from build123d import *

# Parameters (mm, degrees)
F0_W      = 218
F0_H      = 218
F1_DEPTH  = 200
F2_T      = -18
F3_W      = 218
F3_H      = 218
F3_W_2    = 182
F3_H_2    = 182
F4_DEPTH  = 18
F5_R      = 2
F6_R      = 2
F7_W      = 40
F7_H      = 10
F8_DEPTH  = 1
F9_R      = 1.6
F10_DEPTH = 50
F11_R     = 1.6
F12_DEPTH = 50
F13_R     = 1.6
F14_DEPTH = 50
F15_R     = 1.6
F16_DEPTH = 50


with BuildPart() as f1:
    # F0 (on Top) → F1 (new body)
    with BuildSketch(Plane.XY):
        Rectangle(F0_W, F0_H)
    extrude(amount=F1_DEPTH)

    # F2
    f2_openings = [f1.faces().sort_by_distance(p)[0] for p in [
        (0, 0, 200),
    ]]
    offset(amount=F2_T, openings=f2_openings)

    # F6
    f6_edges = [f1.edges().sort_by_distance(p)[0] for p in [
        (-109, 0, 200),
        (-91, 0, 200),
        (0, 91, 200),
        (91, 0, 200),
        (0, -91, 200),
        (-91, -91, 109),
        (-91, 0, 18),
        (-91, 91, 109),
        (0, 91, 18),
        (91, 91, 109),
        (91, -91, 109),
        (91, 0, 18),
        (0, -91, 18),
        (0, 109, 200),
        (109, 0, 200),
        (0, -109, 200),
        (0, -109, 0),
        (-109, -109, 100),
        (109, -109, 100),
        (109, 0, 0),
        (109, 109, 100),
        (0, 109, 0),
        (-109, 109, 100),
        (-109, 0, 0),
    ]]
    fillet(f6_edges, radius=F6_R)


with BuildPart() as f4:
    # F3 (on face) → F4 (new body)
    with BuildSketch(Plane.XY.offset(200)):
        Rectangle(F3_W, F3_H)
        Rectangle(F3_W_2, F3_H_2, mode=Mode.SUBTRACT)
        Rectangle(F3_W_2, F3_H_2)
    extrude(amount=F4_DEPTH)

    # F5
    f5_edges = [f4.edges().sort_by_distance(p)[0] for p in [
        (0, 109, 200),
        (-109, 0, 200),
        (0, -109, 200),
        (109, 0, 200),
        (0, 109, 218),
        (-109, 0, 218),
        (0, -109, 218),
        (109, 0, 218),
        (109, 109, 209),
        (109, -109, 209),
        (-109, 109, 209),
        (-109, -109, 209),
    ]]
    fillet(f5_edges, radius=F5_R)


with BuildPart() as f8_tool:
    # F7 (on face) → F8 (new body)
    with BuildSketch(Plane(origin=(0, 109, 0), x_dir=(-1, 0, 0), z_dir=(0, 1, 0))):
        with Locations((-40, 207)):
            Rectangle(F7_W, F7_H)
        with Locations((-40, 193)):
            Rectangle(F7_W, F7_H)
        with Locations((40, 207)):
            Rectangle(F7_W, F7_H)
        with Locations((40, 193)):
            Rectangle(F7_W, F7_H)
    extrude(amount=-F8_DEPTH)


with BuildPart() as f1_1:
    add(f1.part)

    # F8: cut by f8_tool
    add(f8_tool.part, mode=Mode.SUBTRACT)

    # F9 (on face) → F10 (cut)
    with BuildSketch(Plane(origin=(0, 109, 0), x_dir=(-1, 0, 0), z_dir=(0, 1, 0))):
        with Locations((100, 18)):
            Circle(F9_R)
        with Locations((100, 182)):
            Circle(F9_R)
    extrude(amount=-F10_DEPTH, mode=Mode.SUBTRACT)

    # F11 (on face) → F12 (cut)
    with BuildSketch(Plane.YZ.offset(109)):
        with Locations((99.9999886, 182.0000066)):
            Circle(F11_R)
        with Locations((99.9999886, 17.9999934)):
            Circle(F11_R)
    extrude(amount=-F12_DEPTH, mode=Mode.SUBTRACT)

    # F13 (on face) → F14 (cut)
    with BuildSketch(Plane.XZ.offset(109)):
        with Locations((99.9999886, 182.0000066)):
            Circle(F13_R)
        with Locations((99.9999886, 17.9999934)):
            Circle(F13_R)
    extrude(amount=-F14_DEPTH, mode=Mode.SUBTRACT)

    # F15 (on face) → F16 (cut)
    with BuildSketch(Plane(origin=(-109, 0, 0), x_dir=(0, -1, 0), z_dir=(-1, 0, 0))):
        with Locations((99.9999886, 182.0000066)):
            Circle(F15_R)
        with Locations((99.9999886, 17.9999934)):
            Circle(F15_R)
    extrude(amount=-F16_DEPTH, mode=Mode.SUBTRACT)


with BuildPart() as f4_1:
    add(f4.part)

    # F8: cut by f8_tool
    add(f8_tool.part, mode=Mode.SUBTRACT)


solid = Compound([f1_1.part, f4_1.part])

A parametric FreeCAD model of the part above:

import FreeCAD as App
import Part
import Sketcher
from FreeCAD import Vector
Q = App.Units.Quantity


def faces_at(feature, points):
    """Names of the faces that lie closest to the given points."""
    faces = feature.Shape.Faces
    near = lambda p: min(range(len(faces)), key=lambda i: faces[i].distToShape(Part.Vertex(*p))[0])
    return sorted({f"Face{near(p) + 1}" for p in points})


def add_polygon(sketch, points):
    """Adds a closed chain of lines whose ends are joined by coincident constraints."""
    first, n = sketch.GeometryCount, len(points)
    for a, b in zip(points, points[1:] + points[:1]):
        sketch.addGeometry(Part.LineSegment(App.Vector(*a, 0), App.Vector(*b, 0)), False)
    for i in range(n):
        sketch.addConstraint(Sketcher.Constraint("Coincident", first + i, 2, first + (i + 1) % n, 1))

doc = App.newDocument("Part")
body = doc.addObject("PartDesign::Body", "Body")

# Sketch on XY plane
sketch1 = body.newObject("Sketcher::SketchObject", "Sketch")
sketch1.AttachmentSupport = (doc.getObject("XY_Plane"), [""])
sketch1.MapMode = "FlatFace"
add_polygon(sketch1, [(-109, 109), (-109, -109), (109, -109), (109, 109)])  # lines 0-3
sketch1.addConstraint([
    Sketcher.Constraint("Vertical", 0),
    Sketcher.Constraint("Horizontal", 1),
    Sketcher.Constraint("Vertical", 2),
    Sketcher.Constraint("Horizontal", 3),
    Sketcher.Constraint("Symmetric", 0, 2, 2, 2, -1, 1),
    Sketcher.Constraint("Equal", 3, 0),
    Sketcher.Constraint("DistanceX", 1, 1, 1, 2, Q("218 mm")),
])
pad1 = body.newObject("PartDesign::Pad", "Pad")
pad1.Profile = sketch1
pad1.Length = 200
doc.recompute()

thickness = body.newObject("PartDesign::Thickness", "Thickness")
thickness.Base = (pad1, faces_at(pad1, [(0, 0, 200)]))
thickness.Value = 18
thickness.Reversed = True
thickness.Join = "Arc"
doc.recompute()

fillet = body.newObject("PartDesign::Fillet", "Fillet")
fillet.Base = (thickness, ["Edge1"])
fillet.UseAllEdges = True
fillet.Radius = 2
body2 = doc.addObject("PartDesign::Body", "Body001")

# Sketch on XY plane
sketch2 = body2.newObject("Sketcher::SketchObject", "Sketch001")
sketch2.AttachmentSupport = (doc.getObject("XY_Plane001"), [""])
sketch2.MapMode = "FlatFace"
sketch2.AttachmentOffset = App.Placement(Vector(0, 0, 200), App.Rotation())
add_polygon(sketch2, [(-109, 109), (-109, -109), (109, -109), (109, 109)])  # lines 0-3
sketch2.addConstraint([
    Sketcher.Constraint("Vertical", 0),
    Sketcher.Constraint("Horizontal", 1),
    Sketcher.Constraint("Vertical", 2),
    Sketcher.Constraint("Horizontal", 3),
    Sketcher.Constraint("Symmetric", 0, 2, 2, 2, -1, 1),
    Sketcher.Constraint("Equal", 3, 0),
    Sketcher.Constraint("DistanceX", 1, 1, 1, 2, Q("218 mm")),
])
pad2 = body2.newObject("PartDesign::Pad", "Pad001")
pad2.Profile = sketch2
pad2.Length = 18
doc.recompute()

fillet2 = body2.newObject("PartDesign::Fillet", "Fillet001")
fillet2.Base = (pad2, ["Edge1"])
fillet2.UseAllEdges = True
fillet2.Radius = 2
body3 = doc.addObject("PartDesign::Body", "Body002")
body3.AllowCompound = True

# Sketch on XZ plane
sketch3 = body3.newObject("Sketcher::SketchObject", "Sketch002")
sketch3.AttachmentSupport = (doc.getObject("XZ_Plane002"), [""])
sketch3.MapMode = "FlatFace"
sketch3.AttachmentOffset = App.Placement(Vector(0, 0, -109), App.Rotation())
add_polygon(sketch3, [(60, 212), (60, 202), (20, 202), (20, 212)])  # lines 0-3
add_polygon(sketch3, [(60, 198), (60, 188), (20, 188), (20, 198)])  # lines 4-7
add_polygon(sketch3, [(-20, 212), (-20, 202), (-60, 202), (-60, 212)])  # lines 8-11
add_polygon(sketch3, [(-20, 198), (-20, 188), (-60, 188), (-60, 198)])  # lines 12-15
sketch3.addConstraint([
    Sketcher.Constraint("Vertical", 0),
    Sketcher.Constraint("Horizontal", 1),
    Sketcher.Constraint("Vertical", 2),
    Sketcher.Constraint("Horizontal", 3),
    Sketcher.Constraint("Vertical", 4),
    Sketcher.Constraint("Horizontal", 5),
    Sketcher.Constraint("Vertical", 6),
    Sketcher.Constraint("Horizontal", 7),
    Sketcher.Constraint("Vertical", 8),
    Sketcher.Constraint("Horizontal", 9),
    Sketcher.Constraint("Vertical", 10),
    Sketcher.Constraint("Horizontal", 11),
    Sketcher.Constraint("Vertical", 12),
    Sketcher.Constraint("Horizontal", 13),
    Sketcher.Constraint("Vertical", 14),
    Sketcher.Constraint("Horizontal", 15),
    Sketcher.Constraint("Symmetric", 1, 2, 8, 2, -2),
    Sketcher.Constraint("Symmetric", 3, 2, 10, 2, -2),
    Sketcher.Constraint("Symmetric", 5, 2, 12, 2, -2),
    Sketcher.Constraint("Symmetric", 7, 2, 14, 2, -2),
    Sketcher.Constraint("Vertical", 3, 2, 4, 2),
    Sketcher.Constraint("Vertical", 2, 2, 5, 2),
    Sketcher.Constraint("Equal", 2, 4),
    Sketcher.Constraint("DistanceX", 1, 2, 1, 1, Q("40 mm")),
    Sketcher.Constraint("DistanceY", 0, 2, 0, 1, Q("10 mm")),
    Sketcher.Constraint("DistanceX", -1, 1, 0, 2, Q("60 mm")),
    Sketcher.Constraint("DistanceY", -1, 1, 0, 2, Q("202 mm")),
    Sketcher.Constraint("DistanceY", -1, 1, 4, 2, Q("188 mm")),
])
pad3 = body3.newObject("PartDesign::Pad", "Pad002")
pad3.Profile = sketch3
pad3.Length = 1
doc.recompute()

body4 = doc.addObject("PartDesign::Body", "Body003")
body4.BaseFeature = body3
boolean = body.newObject("PartDesign::Boolean", "Boolean")
boolean.Type = "Cut"
boolean.addObjects([body4])
doc.recompute()

# Sketch on XZ plane
sketch4 = body.newObject("Sketcher::SketchObject", "Sketch003")
sketch4.AttachmentSupport = (doc.getObject("XZ_Plane"), [""])
sketch4.MapMode = "FlatFace"
sketch4.AttachmentOffset = App.Placement(Vector(0, 0, -109), App.Rotation())
sketch4.addGeometry([
    Part.Circle(Vector(-100, 18, 0), Vector(0, 0, 1), 1.6),
    Part.Circle(Vector(-100, 182, 0), Vector(0, 0, 1), 1.6),
], False)
sketch4.addConstraint([
    Sketcher.Constraint("Equal", 0, 1),
    Sketcher.Constraint("Vertical", 0, 3, 1, 3),
    Sketcher.Constraint("Diameter", 0, Q("3.2 mm")),
    Sketcher.Constraint("DistanceX", 0, 3, -1, 1, Q("100 mm")),
    Sketcher.Constraint("DistanceY", -1, 1, 0, 3, Q("18 mm")),
    Sketcher.Constraint("DistanceY", -1, 1, 1, 3, Q("182 mm")),
])
pocket1 = body.newObject("PartDesign::Pocket", "Pocket")
pocket1.Profile = sketch4
pocket1.Length = 50
pocket1.Reversed = True

# Sketch on YZ plane
sketch5 = body.newObject("Sketcher::SketchObject", "Sketch004")
sketch5.AttachmentSupport = (doc.getObject("YZ_Plane"), [""])
sketch5.MapMode = "FlatFace"
sketch5.AttachmentOffset = App.Placement(Vector(0, 0, 109), App.Rotation())
sketch5.addGeometry([
    Part.Circle(Vector(99.999989, 182.000007, 0), Vector(0, 0, 1), 1.6),
    Part.Circle(Vector(99.999989, 17.999993, 0), Vector(0, 0, 1), 1.6),
], False)
sketch5.addConstraint([
    Sketcher.Constraint("Equal", 0, 1),
    Sketcher.Constraint("Vertical", 0, 3, 1, 3),
    Sketcher.Constraint("Diameter", 0, Q("3.2 mm")),
    Sketcher.Constraint("DistanceX", -1, 1, 0, 3, Q("99.999989 mm")),
    Sketcher.Constraint("DistanceY", -1, 1, 0, 3, Q("182.000007 mm")),
    Sketcher.Constraint("DistanceY", -1, 1, 1, 3, Q("17.999993 mm")),
])
pocket2 = body.newObject("PartDesign::Pocket", "Pocket001")
pocket2.Profile = sketch5
pocket2.Length = 50

# Sketch on XZ plane
sketch6 = body.newObject("Sketcher::SketchObject", "Sketch005")
sketch6.AttachmentSupport = (doc.getObject("XZ_Plane"), [""])
sketch6.MapMode = "FlatFace"
sketch6.AttachmentOffset = App.Placement(Vector(0, 0, 109), App.Rotation())
sketch6.addGeometry([
    Part.Circle(Vector(99.999989, 182.000007, 0), Vector(0, 0, 1), 1.6),
    Part.Circle(Vector(99.999989, 17.999993, 0), Vector(0, 0, 1), 1.6),
], False)
sketch6.addConstraint([
    Sketcher.Constraint("Equal", 0, 1),
    Sketcher.Constraint("Vertical", 0, 3, 1, 3),
    Sketcher.Constraint("Diameter", 0, Q("3.2 mm")),
    Sketcher.Constraint("DistanceX", -1, 1, 0, 3, Q("99.999989 mm")),
    Sketcher.Constraint("DistanceY", -1, 1, 0, 3, Q("182.000007 mm")),
    Sketcher.Constraint("DistanceY", -1, 1, 1, 3, Q("17.999993 mm")),
])
pocket3 = body.newObject("PartDesign::Pocket", "Pocket002")
pocket3.Profile = sketch6
pocket3.Length = 50

# Sketch on YZ plane
sketch7 = body.newObject("Sketcher::SketchObject", "Sketch006")
sketch7.AttachmentSupport = (doc.getObject("YZ_Plane"), [""])
sketch7.MapMode = "FlatFace"
sketch7.AttachmentOffset = App.Placement(Vector(0, 0, -109), App.Rotation())
sketch7.addGeometry([
    Part.Circle(Vector(-99.999989, 182.000007, 0), Vector(0, 0, 1), 1.6),
    Part.Circle(Vector(-99.999989, 17.999993, 0), Vector(0, 0, 1), 1.6),
], False)
sketch7.addConstraint([
    Sketcher.Constraint("Equal", 0, 1),
    Sketcher.Constraint("Vertical", 0, 3, 1, 3),
    Sketcher.Constraint("Diameter", 0, Q("3.2 mm")),
    Sketcher.Constraint("DistanceX", 0, 3, -1, 1, Q("99.999989 mm")),
    Sketcher.Constraint("DistanceY", -1, 1, 0, 3, Q("182.000007 mm")),
    Sketcher.Constraint("DistanceY", -1, 1, 1, 3, Q("17.999993 mm")),
])
pocket4 = body.newObject("PartDesign::Pocket", "Pocket003")
pocket4.Profile = sketch7
pocket4.Length = 50
pocket4.Reversed = True
doc.recompute()

boolean2 = body2.newObject("PartDesign::Boolean", "Boolean001")
boolean2.Type = "Cut"
boolean2.addObjects([body3])

doc.recompute()
